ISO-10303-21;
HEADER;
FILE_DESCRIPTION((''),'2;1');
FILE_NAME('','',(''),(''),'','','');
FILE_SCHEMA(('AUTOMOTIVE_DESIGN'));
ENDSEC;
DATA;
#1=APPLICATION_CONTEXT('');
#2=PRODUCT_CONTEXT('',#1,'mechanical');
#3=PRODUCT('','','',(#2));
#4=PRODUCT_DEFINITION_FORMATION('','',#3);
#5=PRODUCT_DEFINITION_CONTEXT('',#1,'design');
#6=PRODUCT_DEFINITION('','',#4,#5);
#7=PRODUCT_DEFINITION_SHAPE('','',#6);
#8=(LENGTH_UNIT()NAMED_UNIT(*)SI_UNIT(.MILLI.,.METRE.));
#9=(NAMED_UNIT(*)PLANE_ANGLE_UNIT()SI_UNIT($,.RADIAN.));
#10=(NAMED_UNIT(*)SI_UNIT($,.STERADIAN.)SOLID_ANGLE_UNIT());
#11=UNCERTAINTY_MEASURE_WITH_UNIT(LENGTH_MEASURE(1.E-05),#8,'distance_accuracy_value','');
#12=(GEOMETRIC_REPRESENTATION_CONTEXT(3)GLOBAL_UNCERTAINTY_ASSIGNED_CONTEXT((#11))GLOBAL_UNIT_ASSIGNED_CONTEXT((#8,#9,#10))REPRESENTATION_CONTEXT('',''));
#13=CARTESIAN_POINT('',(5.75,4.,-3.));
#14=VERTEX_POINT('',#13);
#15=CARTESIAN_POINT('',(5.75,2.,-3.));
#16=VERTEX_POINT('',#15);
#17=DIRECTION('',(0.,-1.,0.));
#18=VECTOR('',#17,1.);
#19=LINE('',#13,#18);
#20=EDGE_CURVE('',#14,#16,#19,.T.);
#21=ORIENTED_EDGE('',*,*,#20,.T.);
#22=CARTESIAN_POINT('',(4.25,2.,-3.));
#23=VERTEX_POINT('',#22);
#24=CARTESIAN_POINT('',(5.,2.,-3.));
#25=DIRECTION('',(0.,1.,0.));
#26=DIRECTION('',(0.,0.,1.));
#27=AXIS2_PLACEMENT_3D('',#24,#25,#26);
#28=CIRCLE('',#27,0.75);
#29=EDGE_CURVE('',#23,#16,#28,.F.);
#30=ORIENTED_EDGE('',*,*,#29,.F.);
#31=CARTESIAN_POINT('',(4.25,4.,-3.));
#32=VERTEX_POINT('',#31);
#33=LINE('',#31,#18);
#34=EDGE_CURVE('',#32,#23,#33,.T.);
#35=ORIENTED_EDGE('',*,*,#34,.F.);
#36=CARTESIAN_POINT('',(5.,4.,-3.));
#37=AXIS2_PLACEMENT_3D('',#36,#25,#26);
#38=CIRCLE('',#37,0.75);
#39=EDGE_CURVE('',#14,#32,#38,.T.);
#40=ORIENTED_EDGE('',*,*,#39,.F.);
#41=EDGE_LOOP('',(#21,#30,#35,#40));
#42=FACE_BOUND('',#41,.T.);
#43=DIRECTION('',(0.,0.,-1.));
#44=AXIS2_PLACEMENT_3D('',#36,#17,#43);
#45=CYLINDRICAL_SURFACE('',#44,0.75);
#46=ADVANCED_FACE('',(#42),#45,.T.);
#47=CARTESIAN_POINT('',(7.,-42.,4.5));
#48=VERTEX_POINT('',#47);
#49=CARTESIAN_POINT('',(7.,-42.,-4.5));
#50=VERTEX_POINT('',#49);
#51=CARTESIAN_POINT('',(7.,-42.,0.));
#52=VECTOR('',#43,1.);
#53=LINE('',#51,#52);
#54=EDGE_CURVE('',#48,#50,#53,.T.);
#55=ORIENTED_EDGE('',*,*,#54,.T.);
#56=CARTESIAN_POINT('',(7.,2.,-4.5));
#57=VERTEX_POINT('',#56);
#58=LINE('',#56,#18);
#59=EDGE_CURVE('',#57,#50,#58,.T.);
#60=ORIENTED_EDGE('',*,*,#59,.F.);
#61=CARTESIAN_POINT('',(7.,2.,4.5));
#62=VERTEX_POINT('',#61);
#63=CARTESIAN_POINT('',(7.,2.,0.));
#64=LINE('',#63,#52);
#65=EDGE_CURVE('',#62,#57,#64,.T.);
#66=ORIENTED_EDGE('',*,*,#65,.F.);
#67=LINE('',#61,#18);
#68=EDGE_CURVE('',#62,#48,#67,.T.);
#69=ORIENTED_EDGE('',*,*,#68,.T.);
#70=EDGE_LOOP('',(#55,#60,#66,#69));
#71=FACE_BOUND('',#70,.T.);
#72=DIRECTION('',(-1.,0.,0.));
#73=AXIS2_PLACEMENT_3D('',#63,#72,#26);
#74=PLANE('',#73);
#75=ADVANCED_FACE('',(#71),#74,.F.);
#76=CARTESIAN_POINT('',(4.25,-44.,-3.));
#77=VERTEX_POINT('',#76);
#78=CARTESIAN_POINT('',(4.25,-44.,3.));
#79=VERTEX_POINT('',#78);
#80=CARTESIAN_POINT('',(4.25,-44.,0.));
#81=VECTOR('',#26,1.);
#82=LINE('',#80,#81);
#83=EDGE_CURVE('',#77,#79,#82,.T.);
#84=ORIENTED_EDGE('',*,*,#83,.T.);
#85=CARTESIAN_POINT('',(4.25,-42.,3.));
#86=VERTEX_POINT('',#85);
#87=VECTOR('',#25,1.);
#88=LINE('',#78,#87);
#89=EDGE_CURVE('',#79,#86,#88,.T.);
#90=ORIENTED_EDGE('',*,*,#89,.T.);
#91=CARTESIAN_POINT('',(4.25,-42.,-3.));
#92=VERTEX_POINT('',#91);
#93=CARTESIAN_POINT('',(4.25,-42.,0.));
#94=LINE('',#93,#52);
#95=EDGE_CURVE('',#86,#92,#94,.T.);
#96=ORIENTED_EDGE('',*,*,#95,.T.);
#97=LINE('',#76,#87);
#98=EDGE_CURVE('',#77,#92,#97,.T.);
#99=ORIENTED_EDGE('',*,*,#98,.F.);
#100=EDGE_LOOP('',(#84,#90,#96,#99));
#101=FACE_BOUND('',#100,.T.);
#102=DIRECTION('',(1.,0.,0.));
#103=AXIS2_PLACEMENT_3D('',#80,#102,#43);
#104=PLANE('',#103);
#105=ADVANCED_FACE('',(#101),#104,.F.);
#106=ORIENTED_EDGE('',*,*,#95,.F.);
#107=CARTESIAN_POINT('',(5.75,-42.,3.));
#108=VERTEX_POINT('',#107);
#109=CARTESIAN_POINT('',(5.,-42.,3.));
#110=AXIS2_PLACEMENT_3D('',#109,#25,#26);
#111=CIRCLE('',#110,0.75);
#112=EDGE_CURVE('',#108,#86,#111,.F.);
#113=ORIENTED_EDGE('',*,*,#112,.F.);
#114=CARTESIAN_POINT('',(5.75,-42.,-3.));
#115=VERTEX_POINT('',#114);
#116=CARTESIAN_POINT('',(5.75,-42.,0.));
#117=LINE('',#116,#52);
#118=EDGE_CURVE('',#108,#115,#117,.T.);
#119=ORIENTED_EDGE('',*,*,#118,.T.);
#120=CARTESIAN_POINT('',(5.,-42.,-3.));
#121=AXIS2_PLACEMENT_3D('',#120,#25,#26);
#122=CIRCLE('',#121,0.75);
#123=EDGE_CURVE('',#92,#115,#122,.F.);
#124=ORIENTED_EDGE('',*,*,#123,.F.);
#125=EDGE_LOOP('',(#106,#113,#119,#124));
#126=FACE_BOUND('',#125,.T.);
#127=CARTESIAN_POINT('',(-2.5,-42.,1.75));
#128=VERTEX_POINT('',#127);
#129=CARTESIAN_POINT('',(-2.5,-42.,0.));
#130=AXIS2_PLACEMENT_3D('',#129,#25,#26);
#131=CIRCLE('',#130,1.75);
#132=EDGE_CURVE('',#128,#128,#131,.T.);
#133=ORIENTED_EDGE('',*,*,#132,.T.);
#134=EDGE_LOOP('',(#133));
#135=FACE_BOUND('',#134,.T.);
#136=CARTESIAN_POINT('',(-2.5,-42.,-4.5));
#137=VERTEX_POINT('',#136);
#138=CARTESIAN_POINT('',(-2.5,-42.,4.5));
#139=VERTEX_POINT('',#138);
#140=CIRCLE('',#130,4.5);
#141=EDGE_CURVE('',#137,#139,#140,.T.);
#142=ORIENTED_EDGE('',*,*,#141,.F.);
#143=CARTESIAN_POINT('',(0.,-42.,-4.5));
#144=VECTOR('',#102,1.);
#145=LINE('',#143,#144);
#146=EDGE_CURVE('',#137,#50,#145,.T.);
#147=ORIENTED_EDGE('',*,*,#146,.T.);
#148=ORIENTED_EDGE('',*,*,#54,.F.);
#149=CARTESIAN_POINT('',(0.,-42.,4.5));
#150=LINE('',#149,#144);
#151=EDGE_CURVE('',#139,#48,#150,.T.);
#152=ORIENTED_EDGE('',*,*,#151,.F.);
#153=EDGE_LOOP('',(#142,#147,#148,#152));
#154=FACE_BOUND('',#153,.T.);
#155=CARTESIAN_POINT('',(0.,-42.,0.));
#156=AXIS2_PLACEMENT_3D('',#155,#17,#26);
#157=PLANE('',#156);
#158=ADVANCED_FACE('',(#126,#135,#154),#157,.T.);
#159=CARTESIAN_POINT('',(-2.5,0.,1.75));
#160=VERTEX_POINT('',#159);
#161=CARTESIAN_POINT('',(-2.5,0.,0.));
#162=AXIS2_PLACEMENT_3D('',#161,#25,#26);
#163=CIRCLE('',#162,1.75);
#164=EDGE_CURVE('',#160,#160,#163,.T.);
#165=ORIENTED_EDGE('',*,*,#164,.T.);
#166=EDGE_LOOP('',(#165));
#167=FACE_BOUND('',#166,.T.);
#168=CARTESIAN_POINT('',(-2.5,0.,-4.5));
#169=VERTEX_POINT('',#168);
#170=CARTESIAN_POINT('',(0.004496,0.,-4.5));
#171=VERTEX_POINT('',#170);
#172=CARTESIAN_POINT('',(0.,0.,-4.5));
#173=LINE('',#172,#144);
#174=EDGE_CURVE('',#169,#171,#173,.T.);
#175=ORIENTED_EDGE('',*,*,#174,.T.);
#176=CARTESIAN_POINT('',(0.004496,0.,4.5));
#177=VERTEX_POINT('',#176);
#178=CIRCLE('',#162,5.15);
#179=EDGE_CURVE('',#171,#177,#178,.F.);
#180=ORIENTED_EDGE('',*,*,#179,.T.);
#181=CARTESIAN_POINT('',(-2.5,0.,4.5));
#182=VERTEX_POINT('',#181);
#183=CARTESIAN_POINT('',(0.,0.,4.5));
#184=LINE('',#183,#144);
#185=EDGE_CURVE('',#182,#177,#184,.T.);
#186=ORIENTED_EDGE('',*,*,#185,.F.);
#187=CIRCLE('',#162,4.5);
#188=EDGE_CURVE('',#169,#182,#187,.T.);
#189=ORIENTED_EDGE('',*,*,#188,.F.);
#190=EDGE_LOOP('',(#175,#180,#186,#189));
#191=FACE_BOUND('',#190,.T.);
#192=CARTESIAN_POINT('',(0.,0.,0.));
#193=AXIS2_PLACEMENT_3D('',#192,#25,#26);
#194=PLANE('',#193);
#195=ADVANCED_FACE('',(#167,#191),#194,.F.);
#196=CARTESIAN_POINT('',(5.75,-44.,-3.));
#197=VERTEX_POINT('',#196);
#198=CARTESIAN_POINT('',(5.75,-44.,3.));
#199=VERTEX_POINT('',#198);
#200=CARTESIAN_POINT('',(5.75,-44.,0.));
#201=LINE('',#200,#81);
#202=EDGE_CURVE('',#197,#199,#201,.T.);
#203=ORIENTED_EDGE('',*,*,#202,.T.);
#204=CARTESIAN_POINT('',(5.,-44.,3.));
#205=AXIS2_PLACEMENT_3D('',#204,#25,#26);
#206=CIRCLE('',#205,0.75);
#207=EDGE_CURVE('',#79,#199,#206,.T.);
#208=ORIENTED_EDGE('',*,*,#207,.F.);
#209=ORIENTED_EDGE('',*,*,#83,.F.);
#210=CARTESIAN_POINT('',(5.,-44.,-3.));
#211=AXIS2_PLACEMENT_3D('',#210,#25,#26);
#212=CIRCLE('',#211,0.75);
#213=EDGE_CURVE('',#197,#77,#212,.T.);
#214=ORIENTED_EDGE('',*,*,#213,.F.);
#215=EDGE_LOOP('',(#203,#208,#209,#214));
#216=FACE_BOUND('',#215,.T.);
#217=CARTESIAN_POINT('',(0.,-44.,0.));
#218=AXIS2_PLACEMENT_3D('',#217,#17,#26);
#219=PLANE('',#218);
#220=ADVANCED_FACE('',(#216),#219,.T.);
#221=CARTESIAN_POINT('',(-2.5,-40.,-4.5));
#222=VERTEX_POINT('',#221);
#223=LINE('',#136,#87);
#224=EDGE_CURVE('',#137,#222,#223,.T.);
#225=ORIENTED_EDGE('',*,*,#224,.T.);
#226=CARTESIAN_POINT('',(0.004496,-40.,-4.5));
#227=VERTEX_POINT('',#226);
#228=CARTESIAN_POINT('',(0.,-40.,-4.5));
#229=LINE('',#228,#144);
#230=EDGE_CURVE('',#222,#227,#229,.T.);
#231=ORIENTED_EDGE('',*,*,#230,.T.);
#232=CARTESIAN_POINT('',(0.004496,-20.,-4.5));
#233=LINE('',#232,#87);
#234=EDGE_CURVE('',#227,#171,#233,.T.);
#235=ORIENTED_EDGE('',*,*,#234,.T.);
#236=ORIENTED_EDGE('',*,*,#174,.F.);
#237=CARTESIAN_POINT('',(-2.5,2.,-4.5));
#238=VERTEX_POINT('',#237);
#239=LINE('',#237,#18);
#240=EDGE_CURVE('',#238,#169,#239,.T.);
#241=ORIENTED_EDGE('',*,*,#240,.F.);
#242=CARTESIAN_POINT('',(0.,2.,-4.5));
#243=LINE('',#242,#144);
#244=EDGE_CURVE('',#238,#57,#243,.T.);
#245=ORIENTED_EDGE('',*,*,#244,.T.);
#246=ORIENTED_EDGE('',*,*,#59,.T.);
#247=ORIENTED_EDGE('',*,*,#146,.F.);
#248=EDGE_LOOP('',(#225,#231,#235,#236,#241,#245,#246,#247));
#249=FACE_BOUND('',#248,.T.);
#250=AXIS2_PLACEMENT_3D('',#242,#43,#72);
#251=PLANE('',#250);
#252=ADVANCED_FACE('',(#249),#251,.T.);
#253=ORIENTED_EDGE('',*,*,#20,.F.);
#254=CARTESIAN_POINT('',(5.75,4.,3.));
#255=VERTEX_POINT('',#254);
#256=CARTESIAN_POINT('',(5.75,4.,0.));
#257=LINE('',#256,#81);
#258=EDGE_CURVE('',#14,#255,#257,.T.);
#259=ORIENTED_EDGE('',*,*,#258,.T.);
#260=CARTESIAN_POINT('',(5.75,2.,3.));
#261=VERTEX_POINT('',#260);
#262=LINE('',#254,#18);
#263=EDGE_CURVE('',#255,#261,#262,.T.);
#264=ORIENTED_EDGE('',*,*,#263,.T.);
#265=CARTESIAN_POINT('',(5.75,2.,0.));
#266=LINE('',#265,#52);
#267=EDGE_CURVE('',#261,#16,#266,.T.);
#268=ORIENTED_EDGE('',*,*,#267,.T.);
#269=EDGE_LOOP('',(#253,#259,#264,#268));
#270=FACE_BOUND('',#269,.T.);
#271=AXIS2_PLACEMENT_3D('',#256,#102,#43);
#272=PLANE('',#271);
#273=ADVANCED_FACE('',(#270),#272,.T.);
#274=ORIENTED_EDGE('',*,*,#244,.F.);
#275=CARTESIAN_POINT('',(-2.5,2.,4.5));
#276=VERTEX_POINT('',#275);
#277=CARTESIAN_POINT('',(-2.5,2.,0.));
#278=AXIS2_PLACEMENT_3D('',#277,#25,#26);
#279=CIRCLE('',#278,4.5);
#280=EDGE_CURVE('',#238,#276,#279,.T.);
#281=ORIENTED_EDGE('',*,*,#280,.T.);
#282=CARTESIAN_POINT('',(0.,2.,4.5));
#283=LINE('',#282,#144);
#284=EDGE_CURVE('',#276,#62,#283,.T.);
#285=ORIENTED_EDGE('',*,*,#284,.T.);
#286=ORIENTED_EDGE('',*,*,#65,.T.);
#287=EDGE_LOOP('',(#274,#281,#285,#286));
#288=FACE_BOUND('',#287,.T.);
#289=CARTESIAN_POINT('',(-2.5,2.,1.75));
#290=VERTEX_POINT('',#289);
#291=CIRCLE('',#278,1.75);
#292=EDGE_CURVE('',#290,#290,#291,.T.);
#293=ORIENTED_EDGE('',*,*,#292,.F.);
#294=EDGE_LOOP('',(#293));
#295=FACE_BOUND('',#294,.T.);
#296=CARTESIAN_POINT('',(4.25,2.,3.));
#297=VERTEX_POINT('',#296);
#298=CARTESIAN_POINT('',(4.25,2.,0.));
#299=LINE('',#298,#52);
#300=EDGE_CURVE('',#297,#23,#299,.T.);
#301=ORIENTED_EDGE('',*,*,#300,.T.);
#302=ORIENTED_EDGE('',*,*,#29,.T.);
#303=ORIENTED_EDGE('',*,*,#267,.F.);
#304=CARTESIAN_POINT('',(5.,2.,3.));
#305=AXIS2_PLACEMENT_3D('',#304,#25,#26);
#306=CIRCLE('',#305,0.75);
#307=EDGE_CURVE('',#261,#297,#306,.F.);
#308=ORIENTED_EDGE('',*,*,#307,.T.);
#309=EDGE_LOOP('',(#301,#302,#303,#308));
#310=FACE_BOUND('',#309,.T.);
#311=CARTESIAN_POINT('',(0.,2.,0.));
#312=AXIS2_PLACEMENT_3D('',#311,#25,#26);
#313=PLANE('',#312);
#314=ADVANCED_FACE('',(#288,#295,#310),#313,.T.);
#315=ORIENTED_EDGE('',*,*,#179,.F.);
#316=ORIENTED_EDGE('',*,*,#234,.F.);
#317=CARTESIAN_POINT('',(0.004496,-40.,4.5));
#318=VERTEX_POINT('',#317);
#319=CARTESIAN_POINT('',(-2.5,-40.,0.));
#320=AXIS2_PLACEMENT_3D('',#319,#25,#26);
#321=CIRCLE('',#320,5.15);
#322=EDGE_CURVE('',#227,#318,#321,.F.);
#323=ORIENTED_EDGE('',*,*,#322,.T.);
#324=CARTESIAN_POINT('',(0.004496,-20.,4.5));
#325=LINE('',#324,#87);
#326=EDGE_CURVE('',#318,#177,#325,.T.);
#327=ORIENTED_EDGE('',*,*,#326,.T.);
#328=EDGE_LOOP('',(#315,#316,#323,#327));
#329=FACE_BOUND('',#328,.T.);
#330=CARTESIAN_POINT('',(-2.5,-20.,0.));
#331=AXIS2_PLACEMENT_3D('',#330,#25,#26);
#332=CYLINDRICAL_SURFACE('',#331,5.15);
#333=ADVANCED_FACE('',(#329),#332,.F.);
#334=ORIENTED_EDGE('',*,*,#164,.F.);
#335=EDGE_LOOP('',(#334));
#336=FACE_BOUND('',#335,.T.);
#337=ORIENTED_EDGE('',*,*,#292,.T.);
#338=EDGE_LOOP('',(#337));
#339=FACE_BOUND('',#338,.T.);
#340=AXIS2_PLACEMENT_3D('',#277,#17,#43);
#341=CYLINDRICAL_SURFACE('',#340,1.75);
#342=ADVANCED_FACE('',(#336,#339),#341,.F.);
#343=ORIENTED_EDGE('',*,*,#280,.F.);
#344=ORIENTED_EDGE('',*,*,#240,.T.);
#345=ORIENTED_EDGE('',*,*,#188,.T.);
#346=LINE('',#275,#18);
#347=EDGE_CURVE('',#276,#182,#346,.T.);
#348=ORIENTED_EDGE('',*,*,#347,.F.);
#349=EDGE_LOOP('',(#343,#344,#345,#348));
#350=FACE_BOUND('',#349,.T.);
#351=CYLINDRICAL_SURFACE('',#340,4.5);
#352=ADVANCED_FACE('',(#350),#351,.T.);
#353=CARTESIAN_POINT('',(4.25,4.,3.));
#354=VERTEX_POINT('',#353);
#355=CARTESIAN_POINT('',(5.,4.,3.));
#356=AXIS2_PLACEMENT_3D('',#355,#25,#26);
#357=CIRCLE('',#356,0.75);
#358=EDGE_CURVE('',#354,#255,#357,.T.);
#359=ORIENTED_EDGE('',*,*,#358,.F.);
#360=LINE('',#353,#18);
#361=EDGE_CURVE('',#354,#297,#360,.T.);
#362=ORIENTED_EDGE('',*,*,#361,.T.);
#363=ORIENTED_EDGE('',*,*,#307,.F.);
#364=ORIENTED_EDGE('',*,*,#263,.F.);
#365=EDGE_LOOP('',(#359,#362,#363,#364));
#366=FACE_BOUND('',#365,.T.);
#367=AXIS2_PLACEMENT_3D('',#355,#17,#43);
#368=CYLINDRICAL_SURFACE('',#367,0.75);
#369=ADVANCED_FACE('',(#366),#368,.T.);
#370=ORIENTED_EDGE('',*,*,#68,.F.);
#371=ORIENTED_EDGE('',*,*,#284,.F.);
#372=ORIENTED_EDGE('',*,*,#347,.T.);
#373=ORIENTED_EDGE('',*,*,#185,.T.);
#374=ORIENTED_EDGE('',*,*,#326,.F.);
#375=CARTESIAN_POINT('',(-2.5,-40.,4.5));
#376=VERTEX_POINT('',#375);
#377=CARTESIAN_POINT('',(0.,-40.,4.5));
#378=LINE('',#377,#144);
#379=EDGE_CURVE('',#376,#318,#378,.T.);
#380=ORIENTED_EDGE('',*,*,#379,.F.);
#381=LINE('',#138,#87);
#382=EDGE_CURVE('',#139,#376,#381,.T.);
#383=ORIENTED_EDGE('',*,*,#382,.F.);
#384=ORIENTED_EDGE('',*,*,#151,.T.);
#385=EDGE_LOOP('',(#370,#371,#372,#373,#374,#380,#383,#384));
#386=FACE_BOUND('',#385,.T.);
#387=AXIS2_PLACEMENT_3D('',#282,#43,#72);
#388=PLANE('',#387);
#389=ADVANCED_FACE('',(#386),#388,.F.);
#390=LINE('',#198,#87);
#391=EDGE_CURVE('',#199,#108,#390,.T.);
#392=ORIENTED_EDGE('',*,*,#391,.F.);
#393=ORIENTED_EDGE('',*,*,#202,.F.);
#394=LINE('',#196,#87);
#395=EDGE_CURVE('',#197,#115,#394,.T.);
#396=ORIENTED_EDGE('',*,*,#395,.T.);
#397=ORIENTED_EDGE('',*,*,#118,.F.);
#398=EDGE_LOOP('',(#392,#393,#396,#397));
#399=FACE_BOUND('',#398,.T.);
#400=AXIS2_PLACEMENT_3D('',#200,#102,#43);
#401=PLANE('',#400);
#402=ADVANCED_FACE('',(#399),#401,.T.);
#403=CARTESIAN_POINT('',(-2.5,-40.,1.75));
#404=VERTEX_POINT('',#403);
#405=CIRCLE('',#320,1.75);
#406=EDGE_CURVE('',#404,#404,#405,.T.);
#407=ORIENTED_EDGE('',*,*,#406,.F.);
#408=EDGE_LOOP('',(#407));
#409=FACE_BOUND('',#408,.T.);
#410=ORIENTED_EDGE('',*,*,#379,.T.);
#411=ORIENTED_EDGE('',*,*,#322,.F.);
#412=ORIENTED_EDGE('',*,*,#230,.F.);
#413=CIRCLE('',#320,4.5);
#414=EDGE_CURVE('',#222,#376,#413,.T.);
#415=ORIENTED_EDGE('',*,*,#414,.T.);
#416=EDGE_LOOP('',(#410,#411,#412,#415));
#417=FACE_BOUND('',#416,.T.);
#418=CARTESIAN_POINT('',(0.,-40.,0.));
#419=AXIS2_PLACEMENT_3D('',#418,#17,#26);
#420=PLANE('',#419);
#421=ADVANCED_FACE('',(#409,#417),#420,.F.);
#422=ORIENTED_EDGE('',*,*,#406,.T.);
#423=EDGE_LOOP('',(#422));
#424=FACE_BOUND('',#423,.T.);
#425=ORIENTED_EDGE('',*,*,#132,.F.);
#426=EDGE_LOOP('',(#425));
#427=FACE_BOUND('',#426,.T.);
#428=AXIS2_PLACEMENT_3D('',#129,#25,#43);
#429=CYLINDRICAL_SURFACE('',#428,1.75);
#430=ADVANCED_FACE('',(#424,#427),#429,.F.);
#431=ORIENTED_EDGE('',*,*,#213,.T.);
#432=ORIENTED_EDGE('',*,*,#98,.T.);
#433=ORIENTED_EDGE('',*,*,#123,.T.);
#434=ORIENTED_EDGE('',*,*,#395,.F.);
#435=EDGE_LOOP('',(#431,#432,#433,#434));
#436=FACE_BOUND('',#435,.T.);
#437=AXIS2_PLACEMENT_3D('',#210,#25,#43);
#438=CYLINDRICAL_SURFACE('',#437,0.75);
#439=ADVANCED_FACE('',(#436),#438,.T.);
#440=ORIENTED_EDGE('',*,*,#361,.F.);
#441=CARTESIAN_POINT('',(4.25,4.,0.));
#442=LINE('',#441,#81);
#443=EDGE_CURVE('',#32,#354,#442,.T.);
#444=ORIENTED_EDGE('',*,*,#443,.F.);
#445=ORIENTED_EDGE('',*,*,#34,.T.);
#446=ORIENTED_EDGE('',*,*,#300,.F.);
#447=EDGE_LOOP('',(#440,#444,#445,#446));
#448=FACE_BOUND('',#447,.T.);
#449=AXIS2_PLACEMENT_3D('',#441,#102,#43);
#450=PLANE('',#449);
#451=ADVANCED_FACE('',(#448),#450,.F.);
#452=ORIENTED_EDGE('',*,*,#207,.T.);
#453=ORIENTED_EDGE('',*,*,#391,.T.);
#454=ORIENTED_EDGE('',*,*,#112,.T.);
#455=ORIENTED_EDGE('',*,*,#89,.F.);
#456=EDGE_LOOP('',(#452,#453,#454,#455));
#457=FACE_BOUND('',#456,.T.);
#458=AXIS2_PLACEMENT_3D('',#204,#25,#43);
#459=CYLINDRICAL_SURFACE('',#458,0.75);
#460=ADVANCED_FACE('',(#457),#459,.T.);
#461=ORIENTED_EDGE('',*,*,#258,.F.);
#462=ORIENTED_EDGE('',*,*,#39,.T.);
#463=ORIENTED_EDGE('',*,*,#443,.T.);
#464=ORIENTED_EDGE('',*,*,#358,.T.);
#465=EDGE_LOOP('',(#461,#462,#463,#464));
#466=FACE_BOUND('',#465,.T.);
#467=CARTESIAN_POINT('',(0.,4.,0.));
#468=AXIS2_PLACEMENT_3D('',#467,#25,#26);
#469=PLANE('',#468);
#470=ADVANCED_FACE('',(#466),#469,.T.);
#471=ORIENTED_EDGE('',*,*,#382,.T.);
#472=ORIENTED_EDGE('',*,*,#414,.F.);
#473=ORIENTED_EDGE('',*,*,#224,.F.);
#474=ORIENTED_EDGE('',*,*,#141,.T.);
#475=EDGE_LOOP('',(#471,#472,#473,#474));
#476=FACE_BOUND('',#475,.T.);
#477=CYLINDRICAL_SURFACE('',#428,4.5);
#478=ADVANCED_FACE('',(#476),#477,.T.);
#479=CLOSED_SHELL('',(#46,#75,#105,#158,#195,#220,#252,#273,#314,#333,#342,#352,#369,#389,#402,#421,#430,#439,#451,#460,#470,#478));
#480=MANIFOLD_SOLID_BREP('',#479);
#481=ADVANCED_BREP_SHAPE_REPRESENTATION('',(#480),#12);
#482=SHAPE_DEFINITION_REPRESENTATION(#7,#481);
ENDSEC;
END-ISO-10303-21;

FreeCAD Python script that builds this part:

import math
import FreeCAD as App
import Part
import Sketcher
from FreeCAD import Vector
Q = App.Units.Quantity

doc = App.newDocument("Part")
body = doc.addObject("PartDesign::Body", "Body")

sketch1 = body.newObject("Sketcher::SketchObject", "Sketch")
sketch1.AttachmentSupport = (doc.getObject("XZ_Plane"), [""])
sketch1.MapMode = "FlatFace"
sketch1.addGeometry([
    Part.ArcOfCircle(Part.Circle(Vector(-2.5, 0, 0), Vector(0, 0, 1), 4.5), math.radians(90), math.radians(270)),
    Part.LineSegment(Vector(-2.5, 4.5, 0), Vector(7, 4.5, 0)),
    Part.LineSegment(Vector(7, 4.5, 0), Vector(7, -4.5, 0)),
    Part.LineSegment(Vector(7, -4.5, 0), Vector(-2.5, -4.5, 0)),
    Part.Circle(Vector(-2.5, 0, 0), Vector(0, 0, 1), 1.75),
], False)
sketch1.addConstraint([
    Sketcher.Constraint("Tangent", 0, 1, 1, 1),
    Sketcher.Constraint("Coincident", 1, 2, 2, 1),
    Sketcher.Constraint("Coincident", 2, 2, 3, 1),
    Sketcher.Constraint("Tangent", 3, 2, 0, 2),
    Sketcher.Constraint("Horizontal", 1),
    Sketcher.Constraint("Vertical", 2),
    Sketcher.Constraint("Horizontal", 3),
    Sketcher.Constraint("Coincident", 4, 3, 0, 3),
    Sketcher.Constraint("PointOnObject", 0, 3, -1),
    Sketcher.Constraint("Diameter", 4, Q("3.5 mm")),
    Sketcher.Constraint("Radius", 0, Q("4.5 mm")),
    Sketcher.Constraint("DistanceX", 1, 1, 1, 2, Q("9.5 mm")),
    Sketcher.Constraint("DistanceX", -1, 1, 1, 2, Q("7 mm")),
])
pad1 = body.newObject("PartDesign::Pad", "Pad")
pad1.Profile = sketch1
pad1.Length = 2
pad1.Reversed = True

sketch2 = body.newObject("Sketcher::SketchObject", "Sketch001")
sketch2.AttachmentSupport = (doc.getObject("XZ_Plane"), [""])
sketch2.MapMode = "FlatFace"
sketch2.addGeometry([
    Part.ArcOfCircle(Part.Circle(Vector(-2.5, 0, 0), Vector(0, 0, 1), 5.15), math.radians(-60.901671), math.radians(60.901671)),
    Part.LineSegment(Vector(0.004496, 4.5, 0), Vector(7, 4.5, 0)),
    Part.LineSegment(Vector(7, 4.5, 0), Vector(7, -4.5, 0)),
    Part.LineSegment(Vector(7, -4.5, 0), Vector(0.004496, -4.5, 0)),
], False)
sketch2.addConstraint([
    Sketcher.Constraint("Coincident", 0, 2, 1, 1),
    Sketcher.Constraint("Coincident", 1, 2, 2, 1),
    Sketcher.Constraint("Coincident", 2, 2, 3, 1),
    Sketcher.Constraint("Coincident", 3, 2, 0, 1),
    Sketcher.Constraint("Horizontal", 1),
    Sketcher.Constraint("Vertical", 2),
    Sketcher.Constraint("Horizontal", 3),
    Sketcher.Constraint("Symmetric", 0, 2, 3, 2, -1),
    Sketcher.Constraint("DistanceY", 2, 2, 2, 1, Q("9 mm")),
    Sketcher.Constraint("Radius", 0, Q("5.15 mm")),
    Sketcher.Constraint("DistanceX", -1, 1, 1, 2, Q("7 mm")),
    Sketcher.Constraint("DistanceX", 0, 3, -1, 1, Q("2.5 mm")),
])
pad2 = body.newObject("PartDesign::Pad", "Pad001")
pad2.Profile = sketch2
pad2.Length = 20

sketch3 = body.newObject("Sketcher::SketchObject", "Sketch002")
sketch3.AttachmentSupport = (doc.getObject("XZ_Plane"), [""])
sketch3.MapMode = "FlatFace"
sketch3.addGeometry([
    Part.LineSegment(Vector(4.25, -3, 0), Vector(4.25, 3, 0)),
    Part.ArcOfCircle(Part.Circle(Vector(5, 3, 0), Vector(0, 0, 1), 0.75), math.radians(0), math.radians(180)),
    Part.LineSegment(Vector(5.75, 3, 0), Vector(5.75, -3, 0)),
    Part.ArcOfCircle(Part.Circle(Vector(5, -3, 0), Vector(0, 0, 1), 0.75), math.radians(180), math.radians(360)),
], False)
sketch3.addConstraint([
    Sketcher.Constraint("Tangent", 0, 2, 1, 2),
    Sketcher.Constraint("Tangent", 1, 1, 2, 1),
    Sketcher.Constraint("Tangent", 2, 2, 3, 2),
    Sketcher.Constraint("Tangent", 3, 1, 0, 1),
    Sketcher.Constraint("Vertical", 0),
    Sketcher.Constraint("Vertical", 2),
    Sketcher.Constraint("DistanceY", 0, 1, 0, 2, Q("6 mm")),
    Sketcher.Constraint("Radius", 1, Q("0.75 mm")),
    Sketcher.Constraint("DistanceX", -1, 1, 1, 3, Q("5 mm")),
    Sketcher.Constraint("DistanceY", -1, 1, 1, 3, Q("3 mm")),
])
pad3 = body.newObject("PartDesign::Pad", "Pad002")
pad3.Profile = sketch3
pad3.Length = 4
pad3.Reversed = True
body2 = doc.addObject("PartDesign::Body", "Body001")
doc.recompute()

body2.BaseFeature = body
doc.recompute()

mirroring = doc.addObject("Part::Mirroring", "Mirroring")
mirroring.Source = body
mirroring.Base = Vector(0, -20, 0)
mirroring.Normal = Vector(0, 1, 0)
body3 = doc.addObject("PartDesign::Body", "Body002")
body3.BaseFeature = mirroring
boolean = body2.newObject("PartDesign::Boolean", "Boolean")
boolean.Type = "Fuse"
boolean.addObjects([body3])
doc.recompute()
mirroring.Visibility = False

doc.recompute()
